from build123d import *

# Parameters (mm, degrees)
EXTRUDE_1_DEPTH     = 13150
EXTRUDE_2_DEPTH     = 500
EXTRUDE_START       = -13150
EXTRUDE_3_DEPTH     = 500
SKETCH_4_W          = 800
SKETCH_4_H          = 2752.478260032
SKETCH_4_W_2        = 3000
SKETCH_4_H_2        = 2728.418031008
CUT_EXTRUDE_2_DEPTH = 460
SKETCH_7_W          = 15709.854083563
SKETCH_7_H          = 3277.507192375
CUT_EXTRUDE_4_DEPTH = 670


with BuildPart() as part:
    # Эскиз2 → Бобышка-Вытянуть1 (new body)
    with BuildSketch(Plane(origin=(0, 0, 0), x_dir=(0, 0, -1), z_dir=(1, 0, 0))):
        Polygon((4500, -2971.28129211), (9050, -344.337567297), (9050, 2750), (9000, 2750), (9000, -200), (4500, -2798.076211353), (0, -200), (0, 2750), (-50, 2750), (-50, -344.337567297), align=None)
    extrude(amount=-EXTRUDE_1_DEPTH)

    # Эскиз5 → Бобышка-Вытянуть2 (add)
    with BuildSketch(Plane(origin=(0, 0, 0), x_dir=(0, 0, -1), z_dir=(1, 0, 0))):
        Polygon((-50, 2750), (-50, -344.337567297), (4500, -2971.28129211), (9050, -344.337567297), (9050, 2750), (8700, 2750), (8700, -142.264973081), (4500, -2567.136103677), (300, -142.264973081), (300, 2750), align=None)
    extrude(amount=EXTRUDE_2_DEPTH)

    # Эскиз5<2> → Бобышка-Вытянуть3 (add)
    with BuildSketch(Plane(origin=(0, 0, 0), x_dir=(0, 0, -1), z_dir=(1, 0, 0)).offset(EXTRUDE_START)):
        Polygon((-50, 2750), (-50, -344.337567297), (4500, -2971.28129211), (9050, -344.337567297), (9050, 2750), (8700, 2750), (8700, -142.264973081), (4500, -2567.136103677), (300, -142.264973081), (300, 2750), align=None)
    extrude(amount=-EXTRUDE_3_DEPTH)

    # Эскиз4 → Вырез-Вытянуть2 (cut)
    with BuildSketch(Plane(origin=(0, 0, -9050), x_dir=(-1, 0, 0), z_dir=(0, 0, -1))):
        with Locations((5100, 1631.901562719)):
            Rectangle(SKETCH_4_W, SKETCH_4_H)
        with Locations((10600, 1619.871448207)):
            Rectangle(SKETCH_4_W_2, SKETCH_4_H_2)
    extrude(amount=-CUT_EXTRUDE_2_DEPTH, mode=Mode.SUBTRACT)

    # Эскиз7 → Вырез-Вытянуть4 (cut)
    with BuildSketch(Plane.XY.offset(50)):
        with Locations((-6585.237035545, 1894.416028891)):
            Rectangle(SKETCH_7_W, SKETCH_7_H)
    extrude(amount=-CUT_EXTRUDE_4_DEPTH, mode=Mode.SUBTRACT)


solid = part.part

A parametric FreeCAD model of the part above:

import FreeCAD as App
import Part
import Sketcher
from FreeCAD import Vector
Q = App.Units.Quantity

doc = App.newDocument("Part")
body = doc.addObject("PartDesign::Body", "Body")

sketch1 = body.newObject("Sketcher::SketchObject", "Sketch")
sketch1.AttachmentSupport = (doc.getObject("YZ_Plane"), [""])
sketch1.MapMode = "FlatFace"
sketch1.addGeometry([
    Part.LineSegment(Vector(-2971, -4500, 0), Vector(-344, -9050, 0)),
    Part.LineSegment(Vector(-344, -9050, 0), Vector(2750, -9050, 0)),
    Part.LineSegment(Vector(2750, -9050, 0), Vector(2750, -9000, 0)),
    Part.LineSegment(Vector(2750, -9000, 0), Vector(-200, -9000, 0)),
    Part.LineSegment(Vector(-200, -9000, 0), Vector(-2798, -4500, 0)),
    Part.LineSegment(Vector(-2798, -4500, 0), Vector(-200, 0, 0)),
    Part.LineSegment(Vector(-200, 0, 0), Vector(2750, 0, 0)),
    Part.LineSegment(Vector(2750, 0, 0), Vector(2750, 50, 0)),
    Part.LineSegment(Vector(2750, 50, 0), Vector(-344, 50, 0)),
    Part.LineSegment(Vector(-344, 50, 0), Vector(-2971, -4500, 0)),
], False)
sketch1.addConstraint([
    Sketcher.Constraint("Coincident", 0, 2, 1, 1),
    Sketcher.Constraint("Coincident", 1, 2, 2, 1),
    Sketcher.Constraint("Coincident", 2, 2, 3, 1),
    Sketcher.Constraint("Coincident", 3, 2, 4, 1),
    Sketcher.Constraint("Coincident", 4, 2, 5, 1),
    Sketcher.Constraint("Coincident", 5, 2, 6, 1),
    Sketcher.Constraint("Coincident", 6, 2, 7, 1),
    Sketcher.Constraint("Coincident", 7, 2, 8, 1),
    Sketcher.Constraint("Coincident", 8, 2, 9, 1),
    Sketcher.Constraint("Coincident", 9, 2, 0, 1),
    Sketcher.Constraint("Horizontal", 1),
    Sketcher.Constraint("Vertical", 2),
    Sketcher.Constraint("Horizontal", 3),
    Sketcher.Constraint("Horizontal", 6),
    Sketcher.Constraint("Vertical", 7),
    Sketcher.Constraint("Horizontal", 8),
    Sketcher.Constraint("PointOnObject", 5, 2, -1),
    Sketcher.Constraint("Parallel", 0, 4),
    Sketcher.Constraint("Parallel", 5, 9),
    Sketcher.Constraint("Horizontal", 4, 2, 9, 2),
    Sketcher.Constraint("Vertical", 3, 2, 5, 2),
    Sketcher.Constraint("Vertical", 2, 2, 6, 2),
    Sketcher.Constraint("Vertical", 0, 2, 8, 2),
    Sketcher.Constraint("Equal", 2, 7),
    Sketcher.Constraint("DistanceX", 3, 2, 3, 1, Q("2950 mm")),
    Sketcher.Constraint("DistanceY", 2, 1, 2, 2, Q("50 mm")),
    Sketcher.Constraint("Angle", 0, Q("-60 deg")),
    Sketcher.Constraint("DistanceY", 0, 2, -1, 1, Q("9050 mm")),
    Sketcher.Constraint("DistanceX", -1, 1, 1, 2, Q("2750 mm")),
    Sketcher.Constraint("DistanceX", 1, 1, 1, 2, Q("3094.337567 mm")),
])
pad1 = body.newObject("PartDesign::Pad", "Pad")
pad1.Profile = sketch1
pad1.Length = 13150
pad1.Reversed = True

sketch2 = body.newObject("Sketcher::SketchObject", "Sketch001")
sketch2.AttachmentSupport = (doc.getObject("YZ_Plane"), [""])
sketch2.MapMode = "FlatFace"
sketch2.addGeometry([
    Part.LineSegment(Vector(2750, 50, 0), Vector(-344, 50, 0)),
    Part.LineSegment(Vector(-344, 50, 0), Vector(-2971, -4500, 0)),
    Part.LineSegment(Vector(-2971, -4500, 0), Vector(-344, -9050, 0)),
    Part.LineSegment(Vector(-344, -9050, 0), Vector(2750, -9050, 0)),
    Part.LineSegment(Vector(2750, -9050, 0), Vector(2750, -8700, 0)),
    Part.LineSegment(Vector(2750, -8700, 0), Vector(-142, -8700, 0)),
    Part.LineSegment(Vector(-142, -8700, 0), Vector(-2567, -4500, 0)),
    Part.LineSegment(Vector(-2567, -4500, 0), Vector(-142, -300, 0)),
    Part.LineSegment(Vector(-142, -300, 0), Vector(2750, -300, 0)),
    Part.LineSegment(Vector(2750, -300, 0), Vector(2750, 50, 0)),
], False)
sketch2.addConstraint([
    Sketcher.Constraint("Coincident", 0, 2, 1, 1),
    Sketcher.Constraint("Coincident", 1, 2, 2, 1),
    Sketcher.Constraint("Coincident", 2, 2, 3, 1),
    Sketcher.Constraint("Coincident", 3, 2, 4, 1),
    Sketcher.Constraint("Coincident", 4, 2, 5, 1),
    Sketcher.Constraint("Coincident", 5, 2, 6, 1),
    Sketcher.Constraint("Coincident", 6, 2, 7, 1),
    Sketcher.Constraint("Coincident", 7, 2, 8, 1),
    Sketcher.Constraint("Coincident", 8, 2, 9, 1),
    Sketcher.Constraint("Coincident", 9, 2, 0, 1),
    Sketcher.Constraint("Horizontal", 0),
    Sketcher.Constraint("Horizontal", 3),
    Sketcher.Constraint("Vertical", 4),
    Sketcher.Constraint("Horizontal", 5),
    Sketcher.Constraint("Horizontal", 8),
    Sketcher.Constraint("Vertical", 9),
    Sketcher.Constraint("Parallel", 2, 6),
    Sketcher.Constraint("Parallel", 1, 7),
    Sketcher.Constraint("Horizontal", 1, 2, 6, 2),
    Sketcher.Constraint("Vertical", 0, 2, 2, 2),
    Sketcher.Constraint("Vertical", 5, 2, 7, 2),
    Sketcher.Constraint("Vertical", 4, 2, 8, 2),
    Sketcher.Constraint("Equal", 4, 9),
    Sketcher.Constraint("DistanceY", 4, 1, 4, 2, Q("350 mm")),
    Sketcher.Constraint("Angle", 1, Q("-120 deg")),
    Sketcher.Constraint("DistanceY", -1, 1, 0, 2, Q("50 mm")),
    Sketcher.Constraint("DistanceY", 1, 2, -1, 1, Q("4500 mm")),
    Sketcher.Constraint("DistanceX", -1, 1, 3, 2, Q("2750 mm")),
    Sketcher.Constraint("DistanceX", 0, 2, 0, 1, Q("3094.337567 mm")),
    Sketcher.Constraint("DistanceX", 5, 2, 5, 1, Q("2892.264973 mm")),
])
pad2 = body.newObject("PartDesign::Pad", "Pad001")
pad2.Profile = sketch2
pad2.Length = 500

sketch3 = body.newObject("Sketcher::SketchObject", "Sketch002")
sketch3.AttachmentSupport = (doc.getObject("YZ_Plane"), [""])
sketch3.MapMode = "FlatFace"
sketch3.AttachmentOffset = App.Placement(Vector(0, 0, -13150), App.Rotation())
sketch3.addGeometry([
    Part.LineSegment(Vector(2750, 50, 0), Vector(-344, 50, 0)),
    Part.LineSegment(Vector(-344, 50, 0), Vector(-2971, -4500, 0)),
    Part.LineSegment(Vector(-2971, -4500, 0), Vector(-344, -9050, 0)),
    Part.LineSegment(Vector(-344, -9050, 0), Vector(2750, -9050, 0)),
    Part.LineSegment(Vector(2750, -9050, 0), Vector(2750, -8700, 0)),
    Part.LineSegment(Vector(2750, -8700, 0), Vector(-142, -8700, 0)),
    Part.LineSegment(Vector(-142, -8700, 0), Vector(-2567, -4500, 0)),
    Part.LineSegment(Vector(-2567, -4500, 0), Vector(-142, -300, 0)),
    Part.LineSegment(Vector(-142, -300, 0), Vector(2750, -300, 0)),
    Part.LineSegment(Vector(2750, -300, 0), Vector(2750, 50, 0)),
], False)
sketch3.addConstraint([
    Sketcher.Constraint("Coincident", 0, 2, 1, 1),
    Sketcher.Constraint("Coincident", 1, 2, 2, 1),
    Sketcher.Constraint("Coincident", 2, 2, 3, 1),
    Sketcher.Constraint("Coincident", 3, 2, 4, 1),
    Sketcher.Constraint("Coincident", 4, 2, 5, 1),
    Sketcher.Constraint("Coincident", 5, 2, 6, 1),
    Sketcher.Constraint("Coincident", 6, 2, 7, 1),
    Sketcher.Constraint("Coincident", 7, 2, 8, 1),
    Sketcher.Constraint("Coincident", 8, 2, 9, 1),
    Sketcher.Constraint("Coincident", 9, 2, 0, 1),
    Sketcher.Constraint("Horizontal", 0),
    Sketcher.Constraint("Horizontal", 3),
    Sketcher.Constraint("Vertical", 4),
    Sketcher.Constraint("Horizontal", 5),
    Sketcher.Constraint("Horizontal", 8),
    Sketcher.Constraint("Vertical", 9),
    Sketcher.Constraint("Parallel", 2, 6),
    Sketcher.Constraint("Parallel", 1, 7),
    Sketcher.Constraint("Horizontal", 1, 2, 6, 2),
    Sketcher.Constraint("Vertical", 0, 2, 2, 2),
    Sketcher.Constraint("Vertical", 5, 2, 7, 2),
    Sketcher.Constraint("Vertical", 4, 2, 8, 2),
    Sketcher.Constraint("Equal", 4, 9),
    Sketcher.Constraint("DistanceY", 4, 1, 4, 2, Q("350 mm")),
    Sketcher.Constraint("Angle", 1, Q("-120 deg")),
    Sketcher.Constraint("DistanceY", -1, 1, 0, 2, Q("50 mm")),
    Sketcher.Constraint("DistanceY", 1, 2, -1, 1, Q("4500 mm")),
    Sketcher.Constraint("DistanceX", -1, 1, 3, 2, Q("2750 mm")),
    Sketcher.Constraint("DistanceX", 0, 2, 0, 1, Q("3094.337567 mm")),
    Sketcher.Constraint("DistanceX", 5, 2, 5, 1, Q("2892.264973 mm")),
])
pad3 = body.newObject("PartDesign::Pad", "Pad002")
pad3.Profile = sketch3
pad3.Length = 500
pad3.Reversed = True

sketch4 = body.newObject("Sketcher::SketchObject", "Sketch003")
sketch4.AttachmentSupport = (doc.getObject("XY_Plane"), [""])
sketch4.MapMode = "FlatFace"
sketch4.AttachmentOffset = App.Placement(Vector(0, 0, -9050), App.Rotation())
sketch4.addGeometry([
    Part.LineSegment(Vector(-4700, 3008, 0), Vector(-4700, 256, 0)),
    Part.LineSegment(Vector(-4700, 256, 0), Vector(-5500, 256, 0)),
    Part.LineSegment(Vector(-5500, 256, 0), Vector(-5500, 3008, 0)),
    Part.LineSegment(Vector(-5500, 3008, 0), Vector(-4700, 3008, 0)),
    Part.LineSegment(Vector(-9100, 2984, 0), Vector(-9100, 256, 0)),
    Part.LineSegment(Vector(-9100, 256, 0), Vector(-12100, 256, 0)),
    Part.LineSegment(Vector(-12100, 256, 0), Vector(-12100, 2984, 0)),
    Part.LineSegment(Vector(-12100, 2984, 0), Vector(-9100, 2984, 0)),
], False)
sketch4.addConstraint([
    Sketcher.Constraint("Coincident", 0, 2, 1, 1),
    Sketcher.Constraint("Coincident", 1, 2, 2, 1),
    Sketcher.Constraint("Coincident", 2, 2, 3, 1),
    Sketcher.Constraint("Coincident", 3, 2, 0, 1),
    Sketcher.Constraint("Coincident", 4, 2, 5, 1),
    Sketcher.Constraint("Coincident", 5, 2, 6, 1),
    Sketcher.Constraint("Coincident", 6, 2, 7, 1),
    Sketcher.Constraint("Coincident", 7, 2, 4, 1),
    Sketcher.Constraint("Vertical", 0),
    Sketcher.Constraint("Horizontal", 1),
    Sketcher.Constraint("Vertical", 2),
    Sketcher.Constraint("Horizontal", 3),
    Sketcher.Constraint("Vertical", 4),
    Sketcher.Constraint("Horizontal", 5),
    Sketcher.Constraint("Vertical", 6),
    Sketcher.Constraint("Horizontal", 7),
    Sketcher.Constraint("Horizontal", 1, 2, 4, 2),
    Sketcher.Constraint("DistanceX", 1, 2, 1, 1, Q("800 mm")),
    Sketcher.Constraint("DistanceX", 5, 2, 5, 1, Q("3000 mm")),
    Sketcher.Constraint("DistanceX", 0, 2, -1, 1, Q("4700 mm")),
    Sketcher.Constraint("DistanceX", 4, 2, -1, 1, Q("9100 mm")),
    Sketcher.Constraint("DistanceY", 0, 2, 0, 1, Q("2752.47826 mm")),
    Sketcher.Constraint("DistanceY", 4, 2, 4, 1, Q("2728.418031 mm")),
    Sketcher.Constraint("DistanceY", -1, 1, 0, 2, Q("255.662433 mm")),
])
pocket1 = body.newObject("PartDesign::Pocket", "Pocket")
pocket1.Profile = sketch4
pocket1.Length = 460
pocket1.Reversed = True

sketch5 = body.newObject("Sketcher::SketchObject", "Sketch004")
sketch5.AttachmentSupport = (doc.getObject("XY_Plane"), [""])
sketch5.MapMode = "FlatFace"
sketch5.AttachmentOffset = App.Placement(Vector(0, 0, 50), App.Rotation())
sketch5.addGeometry([
    Part.LineSegment(Vector(-14440, 3533, 0), Vector(-14440, 256, 0)),
    Part.LineSegment(Vector(-14440, 256, 0), Vector(1270, 256, 0)),
    Part.LineSegment(Vector(1270, 256, 0), Vector(1270, 3533, 0)),
    Part.LineSegment(Vector(1270, 3533, 0), Vector(-14440, 3533, 0)),
], False)
sketch5.addConstraint([
    Sketcher.Constraint("Coincident", 0, 2, 1, 1),
    Sketcher.Constraint("Coincident", 1, 2, 2, 1),
    Sketcher.Constraint("Coincident", 2, 2, 3, 1),
    Sketcher.Constraint("Coincident", 3, 2, 0, 1),
    Sketcher.Constraint("Vertical", 0),
    Sketcher.Constraint("Horizontal", 1),
    Sketcher.Constraint("Vertical", 2),
    Sketcher.Constraint("Horizontal", 3),
    Sketcher.Constraint("DistanceX", 1, 1, 1, 2, Q("15709.854084 mm")),
    Sketcher.Constraint("DistanceY", 0, 2, 0, 1, Q("3277.507192 mm")),
    Sketcher.Constraint("DistanceX", 0, 2, -1, 1, Q("14440.164077 mm")),
    Sketcher.Constraint("DistanceY", -1, 1, 0, 2, Q("255.662433 mm")),
])
pocket2 = body.newObject("PartDesign::Pocket", "Pocket001")
pocket2.Profile = sketch5
pocket2.Length = 670

doc.recompute()
